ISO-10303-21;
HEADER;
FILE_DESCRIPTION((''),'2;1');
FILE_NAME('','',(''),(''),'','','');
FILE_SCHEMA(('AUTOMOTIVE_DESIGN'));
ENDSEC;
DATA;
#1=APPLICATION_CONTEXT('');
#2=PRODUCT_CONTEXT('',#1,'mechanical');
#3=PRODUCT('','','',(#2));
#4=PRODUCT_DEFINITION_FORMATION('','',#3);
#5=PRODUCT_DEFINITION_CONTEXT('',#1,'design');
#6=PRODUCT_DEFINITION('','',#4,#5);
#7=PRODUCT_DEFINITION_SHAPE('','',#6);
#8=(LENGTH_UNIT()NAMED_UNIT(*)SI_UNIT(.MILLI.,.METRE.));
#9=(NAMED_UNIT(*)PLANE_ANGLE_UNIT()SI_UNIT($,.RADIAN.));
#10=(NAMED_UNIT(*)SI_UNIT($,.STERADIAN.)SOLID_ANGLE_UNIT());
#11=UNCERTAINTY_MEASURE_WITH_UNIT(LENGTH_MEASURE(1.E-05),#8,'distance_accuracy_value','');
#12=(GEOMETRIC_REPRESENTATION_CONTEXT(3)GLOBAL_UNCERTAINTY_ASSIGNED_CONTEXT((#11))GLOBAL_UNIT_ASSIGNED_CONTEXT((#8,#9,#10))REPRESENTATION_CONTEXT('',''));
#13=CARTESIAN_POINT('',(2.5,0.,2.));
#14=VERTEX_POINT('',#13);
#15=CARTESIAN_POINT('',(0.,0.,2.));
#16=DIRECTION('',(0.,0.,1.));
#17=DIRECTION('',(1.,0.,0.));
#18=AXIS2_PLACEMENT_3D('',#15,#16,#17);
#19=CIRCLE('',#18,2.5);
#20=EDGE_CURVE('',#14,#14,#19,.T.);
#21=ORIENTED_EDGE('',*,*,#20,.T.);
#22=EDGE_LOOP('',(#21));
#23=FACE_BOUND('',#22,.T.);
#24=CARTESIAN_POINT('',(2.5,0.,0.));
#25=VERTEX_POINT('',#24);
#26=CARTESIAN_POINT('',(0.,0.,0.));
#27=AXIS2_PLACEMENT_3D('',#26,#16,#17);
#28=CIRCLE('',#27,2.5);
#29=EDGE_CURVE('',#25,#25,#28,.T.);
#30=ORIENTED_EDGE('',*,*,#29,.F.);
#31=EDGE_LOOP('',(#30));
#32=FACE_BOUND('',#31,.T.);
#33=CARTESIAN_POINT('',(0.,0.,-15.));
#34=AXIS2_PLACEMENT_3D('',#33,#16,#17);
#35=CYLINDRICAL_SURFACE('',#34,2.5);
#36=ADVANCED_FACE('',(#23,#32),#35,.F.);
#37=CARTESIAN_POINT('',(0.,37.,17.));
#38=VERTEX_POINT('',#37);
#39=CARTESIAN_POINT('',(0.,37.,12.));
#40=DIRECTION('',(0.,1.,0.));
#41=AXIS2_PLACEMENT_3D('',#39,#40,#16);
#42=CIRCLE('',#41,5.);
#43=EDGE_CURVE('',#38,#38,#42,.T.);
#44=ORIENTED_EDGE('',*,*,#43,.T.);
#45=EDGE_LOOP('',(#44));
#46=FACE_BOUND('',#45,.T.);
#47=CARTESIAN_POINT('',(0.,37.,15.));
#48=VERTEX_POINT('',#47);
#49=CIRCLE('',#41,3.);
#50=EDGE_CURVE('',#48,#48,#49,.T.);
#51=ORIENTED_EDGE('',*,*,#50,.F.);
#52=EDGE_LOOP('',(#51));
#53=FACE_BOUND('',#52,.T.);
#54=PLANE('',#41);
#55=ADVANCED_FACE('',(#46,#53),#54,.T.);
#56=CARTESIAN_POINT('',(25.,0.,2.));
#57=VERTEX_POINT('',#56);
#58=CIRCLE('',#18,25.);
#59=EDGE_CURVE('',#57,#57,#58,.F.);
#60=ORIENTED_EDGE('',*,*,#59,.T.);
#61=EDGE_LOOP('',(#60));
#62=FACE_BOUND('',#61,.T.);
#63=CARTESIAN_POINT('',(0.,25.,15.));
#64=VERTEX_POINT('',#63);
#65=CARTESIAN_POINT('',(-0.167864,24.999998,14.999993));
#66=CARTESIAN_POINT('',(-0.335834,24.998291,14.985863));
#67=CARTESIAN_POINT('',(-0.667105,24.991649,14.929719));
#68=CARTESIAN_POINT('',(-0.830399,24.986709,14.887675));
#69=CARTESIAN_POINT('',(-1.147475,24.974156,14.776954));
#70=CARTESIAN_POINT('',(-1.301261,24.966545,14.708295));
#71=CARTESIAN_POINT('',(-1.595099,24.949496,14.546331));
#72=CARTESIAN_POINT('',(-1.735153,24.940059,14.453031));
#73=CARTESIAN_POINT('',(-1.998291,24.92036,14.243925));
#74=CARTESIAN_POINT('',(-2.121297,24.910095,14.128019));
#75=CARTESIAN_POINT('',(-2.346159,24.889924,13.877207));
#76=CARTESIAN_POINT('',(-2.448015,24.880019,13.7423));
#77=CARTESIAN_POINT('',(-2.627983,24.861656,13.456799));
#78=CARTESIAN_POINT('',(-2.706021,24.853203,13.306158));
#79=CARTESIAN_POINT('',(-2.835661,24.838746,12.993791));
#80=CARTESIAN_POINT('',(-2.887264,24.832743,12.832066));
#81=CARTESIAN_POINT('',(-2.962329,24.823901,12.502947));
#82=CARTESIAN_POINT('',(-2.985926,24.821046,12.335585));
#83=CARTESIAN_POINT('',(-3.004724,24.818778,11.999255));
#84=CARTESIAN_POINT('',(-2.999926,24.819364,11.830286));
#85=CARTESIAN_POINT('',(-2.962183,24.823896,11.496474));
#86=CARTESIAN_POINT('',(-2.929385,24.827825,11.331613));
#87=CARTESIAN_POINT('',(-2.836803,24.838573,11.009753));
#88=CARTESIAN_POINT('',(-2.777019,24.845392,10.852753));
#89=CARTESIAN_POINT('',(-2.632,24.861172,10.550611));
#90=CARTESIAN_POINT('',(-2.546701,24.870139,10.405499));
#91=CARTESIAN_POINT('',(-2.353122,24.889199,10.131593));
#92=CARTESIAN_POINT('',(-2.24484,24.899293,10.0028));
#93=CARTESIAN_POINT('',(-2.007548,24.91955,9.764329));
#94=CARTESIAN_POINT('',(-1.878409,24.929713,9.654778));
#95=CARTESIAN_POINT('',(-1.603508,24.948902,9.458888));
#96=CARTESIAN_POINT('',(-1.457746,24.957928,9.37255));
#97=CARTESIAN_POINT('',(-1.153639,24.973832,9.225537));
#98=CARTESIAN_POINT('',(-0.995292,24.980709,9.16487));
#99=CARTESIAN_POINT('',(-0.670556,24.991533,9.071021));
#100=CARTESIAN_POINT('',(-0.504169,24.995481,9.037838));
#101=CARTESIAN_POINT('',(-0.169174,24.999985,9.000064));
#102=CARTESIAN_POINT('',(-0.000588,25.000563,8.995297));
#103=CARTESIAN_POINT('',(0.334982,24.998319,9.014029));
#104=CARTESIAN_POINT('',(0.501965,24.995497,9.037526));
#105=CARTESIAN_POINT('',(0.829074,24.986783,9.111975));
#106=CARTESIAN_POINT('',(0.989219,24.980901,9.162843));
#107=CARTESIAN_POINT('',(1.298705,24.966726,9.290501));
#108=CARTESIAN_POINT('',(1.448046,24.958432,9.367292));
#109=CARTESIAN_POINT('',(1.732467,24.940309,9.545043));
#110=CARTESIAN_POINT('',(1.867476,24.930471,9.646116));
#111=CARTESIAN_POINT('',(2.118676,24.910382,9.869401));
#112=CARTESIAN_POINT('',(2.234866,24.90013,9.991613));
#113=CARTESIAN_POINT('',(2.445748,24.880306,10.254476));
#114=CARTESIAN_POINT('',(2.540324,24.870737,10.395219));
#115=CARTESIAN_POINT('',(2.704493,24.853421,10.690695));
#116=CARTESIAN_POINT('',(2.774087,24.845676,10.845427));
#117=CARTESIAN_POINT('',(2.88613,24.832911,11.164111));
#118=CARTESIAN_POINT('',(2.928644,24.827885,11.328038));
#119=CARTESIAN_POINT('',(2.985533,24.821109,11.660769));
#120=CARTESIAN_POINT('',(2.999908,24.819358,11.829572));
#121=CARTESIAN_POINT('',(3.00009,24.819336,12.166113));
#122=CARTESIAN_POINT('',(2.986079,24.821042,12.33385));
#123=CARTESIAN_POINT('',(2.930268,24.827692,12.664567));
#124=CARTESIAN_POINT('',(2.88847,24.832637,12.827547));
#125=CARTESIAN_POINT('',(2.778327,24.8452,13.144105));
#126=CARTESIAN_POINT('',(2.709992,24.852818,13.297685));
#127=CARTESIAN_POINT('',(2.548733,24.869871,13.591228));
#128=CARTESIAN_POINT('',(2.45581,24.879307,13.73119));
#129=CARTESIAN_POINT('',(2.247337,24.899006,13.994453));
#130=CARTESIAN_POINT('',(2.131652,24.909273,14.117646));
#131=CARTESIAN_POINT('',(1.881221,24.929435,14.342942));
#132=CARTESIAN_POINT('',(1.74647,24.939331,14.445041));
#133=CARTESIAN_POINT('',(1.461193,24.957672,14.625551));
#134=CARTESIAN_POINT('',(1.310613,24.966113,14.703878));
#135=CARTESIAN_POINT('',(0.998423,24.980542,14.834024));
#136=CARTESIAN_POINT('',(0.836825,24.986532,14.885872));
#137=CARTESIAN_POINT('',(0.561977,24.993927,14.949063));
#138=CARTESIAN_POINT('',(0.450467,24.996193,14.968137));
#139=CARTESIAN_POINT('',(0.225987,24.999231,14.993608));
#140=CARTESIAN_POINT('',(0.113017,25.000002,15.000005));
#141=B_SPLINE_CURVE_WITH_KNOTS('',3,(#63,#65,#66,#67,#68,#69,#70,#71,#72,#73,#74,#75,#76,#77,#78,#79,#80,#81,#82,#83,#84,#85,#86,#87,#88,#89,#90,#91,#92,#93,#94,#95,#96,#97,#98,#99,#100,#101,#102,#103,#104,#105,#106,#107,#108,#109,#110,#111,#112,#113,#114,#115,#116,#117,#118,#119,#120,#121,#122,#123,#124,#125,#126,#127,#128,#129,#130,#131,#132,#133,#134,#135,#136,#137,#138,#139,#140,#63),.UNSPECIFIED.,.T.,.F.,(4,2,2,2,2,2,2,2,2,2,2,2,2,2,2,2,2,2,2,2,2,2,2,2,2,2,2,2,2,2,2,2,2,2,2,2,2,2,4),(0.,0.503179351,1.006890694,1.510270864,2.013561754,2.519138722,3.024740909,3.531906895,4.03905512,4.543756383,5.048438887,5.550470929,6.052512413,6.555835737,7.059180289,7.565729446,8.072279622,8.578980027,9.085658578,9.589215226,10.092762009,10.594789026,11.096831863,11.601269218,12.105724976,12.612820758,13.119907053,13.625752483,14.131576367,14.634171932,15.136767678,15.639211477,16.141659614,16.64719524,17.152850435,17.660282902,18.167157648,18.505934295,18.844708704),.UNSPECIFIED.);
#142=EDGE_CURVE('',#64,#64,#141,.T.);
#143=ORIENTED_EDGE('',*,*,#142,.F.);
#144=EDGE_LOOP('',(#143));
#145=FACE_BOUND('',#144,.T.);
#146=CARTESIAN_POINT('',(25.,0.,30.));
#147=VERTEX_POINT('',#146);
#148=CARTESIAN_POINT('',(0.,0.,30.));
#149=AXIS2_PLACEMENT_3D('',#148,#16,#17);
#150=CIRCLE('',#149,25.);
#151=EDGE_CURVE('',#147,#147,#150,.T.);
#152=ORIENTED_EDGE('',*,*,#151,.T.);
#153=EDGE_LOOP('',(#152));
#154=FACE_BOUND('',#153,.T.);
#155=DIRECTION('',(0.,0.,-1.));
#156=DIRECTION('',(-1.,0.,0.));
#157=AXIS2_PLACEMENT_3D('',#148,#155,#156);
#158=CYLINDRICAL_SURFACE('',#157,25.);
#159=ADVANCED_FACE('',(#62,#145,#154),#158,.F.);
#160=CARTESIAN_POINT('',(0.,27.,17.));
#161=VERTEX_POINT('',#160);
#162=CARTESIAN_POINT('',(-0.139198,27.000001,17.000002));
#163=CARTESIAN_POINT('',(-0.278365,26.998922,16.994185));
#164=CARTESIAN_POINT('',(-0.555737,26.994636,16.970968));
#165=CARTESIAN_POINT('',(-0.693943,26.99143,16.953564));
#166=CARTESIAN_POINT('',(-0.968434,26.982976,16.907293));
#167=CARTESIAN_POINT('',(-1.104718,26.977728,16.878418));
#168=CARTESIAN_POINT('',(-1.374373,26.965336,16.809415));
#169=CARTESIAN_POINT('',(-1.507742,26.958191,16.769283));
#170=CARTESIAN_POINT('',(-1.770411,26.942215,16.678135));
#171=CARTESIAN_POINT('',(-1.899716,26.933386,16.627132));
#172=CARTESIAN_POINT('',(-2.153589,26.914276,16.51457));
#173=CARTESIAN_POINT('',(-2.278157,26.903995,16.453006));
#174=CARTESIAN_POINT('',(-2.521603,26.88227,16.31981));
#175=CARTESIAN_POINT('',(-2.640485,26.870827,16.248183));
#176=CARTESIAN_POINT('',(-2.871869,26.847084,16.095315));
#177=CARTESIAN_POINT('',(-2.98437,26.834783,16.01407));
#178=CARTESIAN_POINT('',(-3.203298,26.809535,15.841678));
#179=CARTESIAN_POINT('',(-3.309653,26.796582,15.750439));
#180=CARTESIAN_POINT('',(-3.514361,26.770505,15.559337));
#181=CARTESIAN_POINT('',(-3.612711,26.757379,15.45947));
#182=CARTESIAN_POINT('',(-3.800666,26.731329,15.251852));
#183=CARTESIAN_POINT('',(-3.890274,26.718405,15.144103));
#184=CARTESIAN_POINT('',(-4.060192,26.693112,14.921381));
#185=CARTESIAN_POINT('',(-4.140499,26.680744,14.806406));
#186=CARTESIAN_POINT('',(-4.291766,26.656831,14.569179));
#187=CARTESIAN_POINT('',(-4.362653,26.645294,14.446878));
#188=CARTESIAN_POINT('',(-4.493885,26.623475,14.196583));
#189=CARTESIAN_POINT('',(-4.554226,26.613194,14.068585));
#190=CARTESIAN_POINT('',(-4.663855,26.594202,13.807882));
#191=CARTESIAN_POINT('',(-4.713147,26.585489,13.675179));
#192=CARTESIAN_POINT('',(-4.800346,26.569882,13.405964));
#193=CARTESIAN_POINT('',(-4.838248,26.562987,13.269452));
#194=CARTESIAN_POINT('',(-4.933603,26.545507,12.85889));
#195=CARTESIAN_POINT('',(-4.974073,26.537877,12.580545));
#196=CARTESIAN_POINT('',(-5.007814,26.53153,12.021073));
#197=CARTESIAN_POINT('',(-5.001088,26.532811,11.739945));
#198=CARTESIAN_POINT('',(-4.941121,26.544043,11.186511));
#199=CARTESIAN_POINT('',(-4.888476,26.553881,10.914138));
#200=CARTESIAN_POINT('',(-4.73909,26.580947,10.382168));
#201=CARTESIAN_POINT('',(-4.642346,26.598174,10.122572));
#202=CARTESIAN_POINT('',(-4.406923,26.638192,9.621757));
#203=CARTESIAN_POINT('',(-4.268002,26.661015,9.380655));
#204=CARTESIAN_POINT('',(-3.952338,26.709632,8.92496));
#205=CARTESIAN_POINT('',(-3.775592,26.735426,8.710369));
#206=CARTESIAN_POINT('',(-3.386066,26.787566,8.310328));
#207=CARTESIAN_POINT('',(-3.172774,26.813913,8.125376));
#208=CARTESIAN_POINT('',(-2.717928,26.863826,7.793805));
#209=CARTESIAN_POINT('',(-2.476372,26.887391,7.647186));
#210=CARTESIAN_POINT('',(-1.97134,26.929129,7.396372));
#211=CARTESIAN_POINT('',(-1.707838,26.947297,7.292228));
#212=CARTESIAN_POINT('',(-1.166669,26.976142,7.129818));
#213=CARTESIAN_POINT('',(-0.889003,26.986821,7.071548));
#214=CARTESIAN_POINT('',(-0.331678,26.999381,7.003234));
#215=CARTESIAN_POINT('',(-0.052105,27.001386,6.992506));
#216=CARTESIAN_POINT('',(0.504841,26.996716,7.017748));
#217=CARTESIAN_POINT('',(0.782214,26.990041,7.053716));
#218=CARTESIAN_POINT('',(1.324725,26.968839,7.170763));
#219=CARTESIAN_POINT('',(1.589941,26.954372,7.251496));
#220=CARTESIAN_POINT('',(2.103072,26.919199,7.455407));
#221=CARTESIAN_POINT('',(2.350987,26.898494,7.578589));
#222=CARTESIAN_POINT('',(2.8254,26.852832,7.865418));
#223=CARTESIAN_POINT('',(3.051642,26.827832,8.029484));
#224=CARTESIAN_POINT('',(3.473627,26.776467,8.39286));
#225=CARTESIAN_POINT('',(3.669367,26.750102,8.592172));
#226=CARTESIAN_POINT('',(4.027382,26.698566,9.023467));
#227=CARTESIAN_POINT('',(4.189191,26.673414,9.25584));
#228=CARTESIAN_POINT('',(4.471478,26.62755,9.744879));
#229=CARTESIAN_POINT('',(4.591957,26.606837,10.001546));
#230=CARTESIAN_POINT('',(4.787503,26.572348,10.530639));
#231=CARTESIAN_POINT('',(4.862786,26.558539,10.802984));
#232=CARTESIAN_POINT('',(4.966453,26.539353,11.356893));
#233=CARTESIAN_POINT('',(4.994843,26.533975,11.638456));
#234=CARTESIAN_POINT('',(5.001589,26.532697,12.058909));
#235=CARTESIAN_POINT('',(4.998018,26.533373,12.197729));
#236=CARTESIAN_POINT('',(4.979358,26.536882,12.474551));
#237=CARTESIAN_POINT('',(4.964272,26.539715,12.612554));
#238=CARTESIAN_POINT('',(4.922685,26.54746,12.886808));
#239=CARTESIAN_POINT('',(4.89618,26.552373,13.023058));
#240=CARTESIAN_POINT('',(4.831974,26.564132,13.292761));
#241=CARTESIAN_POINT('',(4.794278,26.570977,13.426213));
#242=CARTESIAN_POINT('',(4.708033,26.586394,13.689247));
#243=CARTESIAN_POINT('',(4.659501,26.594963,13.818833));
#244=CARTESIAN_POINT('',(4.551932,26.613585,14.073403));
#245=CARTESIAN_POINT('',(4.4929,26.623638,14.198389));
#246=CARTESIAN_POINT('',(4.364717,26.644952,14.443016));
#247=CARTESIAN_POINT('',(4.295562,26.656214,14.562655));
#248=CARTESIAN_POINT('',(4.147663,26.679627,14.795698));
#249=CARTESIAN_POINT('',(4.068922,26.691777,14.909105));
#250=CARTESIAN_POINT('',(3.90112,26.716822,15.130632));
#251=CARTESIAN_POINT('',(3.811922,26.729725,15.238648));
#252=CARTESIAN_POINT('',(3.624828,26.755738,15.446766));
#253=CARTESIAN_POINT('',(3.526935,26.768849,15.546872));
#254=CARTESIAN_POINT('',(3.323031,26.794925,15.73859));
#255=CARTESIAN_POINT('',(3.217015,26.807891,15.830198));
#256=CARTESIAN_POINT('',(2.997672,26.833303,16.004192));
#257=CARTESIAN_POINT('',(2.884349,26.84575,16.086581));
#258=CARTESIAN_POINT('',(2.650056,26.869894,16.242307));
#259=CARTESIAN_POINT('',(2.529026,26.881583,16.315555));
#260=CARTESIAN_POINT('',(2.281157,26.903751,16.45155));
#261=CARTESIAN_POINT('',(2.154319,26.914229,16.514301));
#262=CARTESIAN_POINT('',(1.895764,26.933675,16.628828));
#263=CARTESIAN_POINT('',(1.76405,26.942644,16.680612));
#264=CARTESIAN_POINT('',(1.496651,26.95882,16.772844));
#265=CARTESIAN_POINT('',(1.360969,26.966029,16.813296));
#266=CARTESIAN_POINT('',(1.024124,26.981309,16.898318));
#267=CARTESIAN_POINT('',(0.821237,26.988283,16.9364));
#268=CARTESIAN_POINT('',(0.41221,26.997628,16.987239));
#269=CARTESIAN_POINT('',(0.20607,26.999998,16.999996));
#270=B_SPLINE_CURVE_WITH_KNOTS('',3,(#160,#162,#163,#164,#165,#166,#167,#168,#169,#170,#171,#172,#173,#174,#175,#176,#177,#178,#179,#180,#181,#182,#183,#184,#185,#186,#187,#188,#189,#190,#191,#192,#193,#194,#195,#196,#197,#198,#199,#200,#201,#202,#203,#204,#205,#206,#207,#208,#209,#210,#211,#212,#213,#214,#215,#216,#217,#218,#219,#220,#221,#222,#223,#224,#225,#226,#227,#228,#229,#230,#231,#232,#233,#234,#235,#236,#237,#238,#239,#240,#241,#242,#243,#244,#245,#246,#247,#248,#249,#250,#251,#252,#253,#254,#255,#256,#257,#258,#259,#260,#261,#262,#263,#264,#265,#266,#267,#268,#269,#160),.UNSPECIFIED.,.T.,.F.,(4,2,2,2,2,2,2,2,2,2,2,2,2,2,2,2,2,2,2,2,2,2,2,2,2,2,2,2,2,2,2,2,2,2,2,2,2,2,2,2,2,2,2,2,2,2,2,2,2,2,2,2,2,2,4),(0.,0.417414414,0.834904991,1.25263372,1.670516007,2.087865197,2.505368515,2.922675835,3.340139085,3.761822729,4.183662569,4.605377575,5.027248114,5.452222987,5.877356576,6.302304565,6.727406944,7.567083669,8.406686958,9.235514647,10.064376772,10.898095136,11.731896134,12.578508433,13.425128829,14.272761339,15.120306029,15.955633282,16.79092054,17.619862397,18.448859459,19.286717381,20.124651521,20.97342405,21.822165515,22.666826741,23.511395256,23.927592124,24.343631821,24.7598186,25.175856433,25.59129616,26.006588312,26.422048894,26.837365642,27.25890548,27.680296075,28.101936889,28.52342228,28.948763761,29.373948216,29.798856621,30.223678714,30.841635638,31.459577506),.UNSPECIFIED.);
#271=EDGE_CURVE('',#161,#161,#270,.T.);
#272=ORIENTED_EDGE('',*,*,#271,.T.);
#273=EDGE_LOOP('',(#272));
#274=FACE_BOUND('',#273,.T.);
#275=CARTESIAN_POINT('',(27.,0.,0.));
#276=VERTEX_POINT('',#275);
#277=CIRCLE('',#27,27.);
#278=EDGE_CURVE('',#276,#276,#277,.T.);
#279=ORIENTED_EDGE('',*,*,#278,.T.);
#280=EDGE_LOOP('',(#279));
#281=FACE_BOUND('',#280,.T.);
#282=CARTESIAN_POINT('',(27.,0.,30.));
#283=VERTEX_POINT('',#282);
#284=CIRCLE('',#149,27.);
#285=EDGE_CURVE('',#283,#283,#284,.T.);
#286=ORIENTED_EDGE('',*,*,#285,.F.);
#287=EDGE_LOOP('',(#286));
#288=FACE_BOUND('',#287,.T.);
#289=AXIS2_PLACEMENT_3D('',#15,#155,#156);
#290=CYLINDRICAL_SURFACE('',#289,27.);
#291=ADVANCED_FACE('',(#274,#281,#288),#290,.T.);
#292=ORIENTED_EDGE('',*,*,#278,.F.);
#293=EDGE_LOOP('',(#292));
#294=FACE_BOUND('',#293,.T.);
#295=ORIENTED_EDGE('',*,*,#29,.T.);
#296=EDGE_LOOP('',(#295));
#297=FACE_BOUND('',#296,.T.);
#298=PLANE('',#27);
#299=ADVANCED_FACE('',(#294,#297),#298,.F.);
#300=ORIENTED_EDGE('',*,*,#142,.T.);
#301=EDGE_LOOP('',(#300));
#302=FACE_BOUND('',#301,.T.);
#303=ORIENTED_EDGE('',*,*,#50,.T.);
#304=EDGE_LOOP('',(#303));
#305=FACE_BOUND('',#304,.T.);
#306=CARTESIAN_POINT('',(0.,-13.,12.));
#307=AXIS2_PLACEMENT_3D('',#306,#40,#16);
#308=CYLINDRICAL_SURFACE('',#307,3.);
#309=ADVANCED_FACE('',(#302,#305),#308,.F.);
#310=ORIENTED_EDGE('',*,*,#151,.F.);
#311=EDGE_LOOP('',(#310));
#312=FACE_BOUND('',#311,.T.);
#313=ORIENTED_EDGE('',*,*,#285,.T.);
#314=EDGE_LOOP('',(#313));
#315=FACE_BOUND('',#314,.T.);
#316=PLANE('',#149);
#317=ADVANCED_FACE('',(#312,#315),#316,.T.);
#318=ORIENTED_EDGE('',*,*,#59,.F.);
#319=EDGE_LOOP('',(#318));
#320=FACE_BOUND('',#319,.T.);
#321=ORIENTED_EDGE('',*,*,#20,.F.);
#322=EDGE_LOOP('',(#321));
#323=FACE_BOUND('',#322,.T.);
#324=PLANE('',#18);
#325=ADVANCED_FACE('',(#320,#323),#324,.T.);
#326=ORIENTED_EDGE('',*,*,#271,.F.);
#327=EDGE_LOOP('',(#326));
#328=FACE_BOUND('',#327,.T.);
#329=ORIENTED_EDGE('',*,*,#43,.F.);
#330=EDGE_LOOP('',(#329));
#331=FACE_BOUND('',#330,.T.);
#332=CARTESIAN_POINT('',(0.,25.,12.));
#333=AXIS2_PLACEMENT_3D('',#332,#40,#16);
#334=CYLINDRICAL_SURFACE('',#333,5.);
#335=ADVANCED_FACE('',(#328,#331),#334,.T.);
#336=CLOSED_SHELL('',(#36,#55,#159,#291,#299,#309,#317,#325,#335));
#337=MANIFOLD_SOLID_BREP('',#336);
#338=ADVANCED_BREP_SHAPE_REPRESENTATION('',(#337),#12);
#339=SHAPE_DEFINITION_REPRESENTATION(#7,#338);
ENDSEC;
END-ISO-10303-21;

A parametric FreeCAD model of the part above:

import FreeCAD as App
import Part
import Sketcher
Q = App.Units.Quantity

doc = App.newDocument("Part")
body = doc.addObject("PartDesign::Body", "Body")

# Sketch on XY plane
sketch1 = body.newObject("Sketcher::SketchObject", "Sketch")
sketch1.AttachmentSupport = (doc.getObject("XY_Plane"), [""])
sketch1.MapMode = "FlatFace"
sketch1.addGeometry(Part.Circle(App.Vector(0, 0, 0), App.Vector(0, 0, 1), 27), False)
sketch1.addConstraint(Sketcher.Constraint("Coincident", 0, 3, -1, 1))
sketch1.addConstraint(Sketcher.Constraint("Diameter", 0, Q("54 mm")))
pad1 = body.newObject("PartDesign::Pad", "Pad")
pad1.Profile = sketch1
pad1.Length = 2

# Sketch on XY plane
sketch2 = body.newObject("Sketcher::SketchObject", "Sketch001")
sketch2.AttachmentSupport = (doc.getObject("XY_Plane"), [""])
sketch2.MapMode = "FlatFace"
sketch2.addGeometry(Part.Circle(App.Vector(0, 0, 0), App.Vector(0, 0, 1), 27), False)
sketch2.addGeometry(Part.Circle(App.Vector(0, 0, 0), App.Vector(0, 0, 1), 25), False)
sketch2.addConstraint(Sketcher.Constraint("Coincident", 0, 3, -1, 1))
sketch2.addConstraint(Sketcher.Constraint("Coincident", 1, 3, -1, 1))
sketch2.addConstraint(Sketcher.Constraint("Diameter", 0, Q("54 mm")))
sketch2.addConstraint(Sketcher.Constraint("Diameter", 1, Q("50 mm")))
pad2 = body.newObject("PartDesign::Pad", "Pad001")
pad2.Profile = sketch2
pad2.Length = 30

# Sketch on XY plane
sketch3 = body.newObject("Sketcher::SketchObject", "Sketch002")
sketch3.AttachmentSupport = (doc.getObject("XY_Plane"), [""])
sketch3.MapMode = "FlatFace"
sketch3.addGeometry(Part.Circle(App.Vector(0, 0, 0), App.Vector(0, 0, 1), 2.5), False)
sketch3.addConstraint(Sketcher.Constraint("Coincident", 0, 3, -1, 1))
sketch3.addConstraint(Sketcher.Constraint("Diameter", 0, Q("5 mm")))
pocket1 = body.newObject("PartDesign::Pocket", "Pocket")
pocket1.Profile = sketch3
pocket1.Length = 30
pocket1.Midplane = True

# Sketch on XZ plane
sketch4 = body.newObject("Sketcher::SketchObject", "Sketch003")
sketch4.AttachmentSupport = (doc.getObject("XZ_Plane"), [""])
sketch4.MapMode = "FlatFace"
sketch4.AttachmentOffset = App.Placement(App.Vector(0, 0, -27), App.Rotation())
sketch4.addGeometry(Part.Circle(App.Vector(0, 12, 0), App.Vector(0, 0, 1), 5), False)
sketch4.addConstraint(Sketcher.Constraint("PointOnObject", 0, 3, -2))
sketch4.addConstraint(Sketcher.Constraint("Diameter", 0, Q("10 mm")))
sketch4.addConstraint(Sketcher.Constraint("DistanceY", -1, 1, 0, 3, Q("12 mm")))
pad3 = body.newObject("PartDesign::Pad", "Pad002")
pad3.Profile = sketch4
pad3.Type = "TwoLengths"
pad3.Length = 10
pad3.Length2 = 2
pad3.Reversed = True

# Sketch on XZ plane
sketch5 = body.newObject("Sketcher::SketchObject", "Sketch004")
sketch5.AttachmentSupport = (doc.getObject("XZ_Plane"), [""])
sketch5.MapMode = "FlatFace"
sketch5.AttachmentOffset = App.Placement(App.Vector(0, 0, -37), App.Rotation())
sketch5.addGeometry(Part.Circle(App.Vector(0, 12, 0), App.Vector(0, 0, 1), 3), False)
sketch5.addConstraint(Sketcher.Constraint("PointOnObject", 0, 3, -2))
sketch5.addConstraint(Sketcher.Constraint("Diameter", 0, Q("6 mm")))
sketch5.addConstraint(Sketcher.Constraint("DistanceY", -1, 1, 0, 3, Q("12 mm")))
pocket2 = body.newObject("PartDesign::Pocket", "Pocket001")
pocket2.Profile = sketch5
pocket2.Length = 50
pocket2.Reversed = True

doc.recompute()
